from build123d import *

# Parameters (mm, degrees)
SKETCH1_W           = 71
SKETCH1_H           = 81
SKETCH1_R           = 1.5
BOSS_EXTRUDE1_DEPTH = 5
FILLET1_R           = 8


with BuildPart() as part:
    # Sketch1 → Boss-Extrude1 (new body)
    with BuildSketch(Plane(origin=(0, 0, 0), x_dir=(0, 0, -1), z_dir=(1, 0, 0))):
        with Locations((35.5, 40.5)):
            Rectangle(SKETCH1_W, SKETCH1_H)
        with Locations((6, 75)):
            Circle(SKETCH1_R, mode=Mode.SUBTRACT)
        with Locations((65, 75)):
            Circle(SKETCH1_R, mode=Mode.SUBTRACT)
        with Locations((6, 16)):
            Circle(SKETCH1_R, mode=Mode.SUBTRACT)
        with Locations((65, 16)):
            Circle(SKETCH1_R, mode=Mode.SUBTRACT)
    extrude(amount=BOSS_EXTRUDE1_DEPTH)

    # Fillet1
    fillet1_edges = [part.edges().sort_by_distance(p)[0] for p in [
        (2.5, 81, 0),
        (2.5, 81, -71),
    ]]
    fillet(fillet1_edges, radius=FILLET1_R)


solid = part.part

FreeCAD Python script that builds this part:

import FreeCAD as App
import Part
import Sketcher
from FreeCAD import Vector


def edges_at(feature, points):
    """Names of the edges that pass closest to the given points."""
    edges = feature.Shape.Edges
    near = lambda p: min(range(len(edges)), key=lambda i: edges[i].distToShape(Part.Vertex(*p))[0])
    return sorted({f"Edge{near(p) + 1}" for p in points})


def add_polygon(sketch, points):
    """Adds a closed chain of lines whose ends are joined by coincident constraints."""
    first, n = sketch.GeometryCount, len(points)
    for a, b in zip(points, points[1:] + points[:1]):
        sketch.addGeometry(Part.LineSegment(App.Vector(*a, 0), App.Vector(*b, 0)), False)
    for i in range(n):
        sketch.addConstraint(Sketcher.Constraint("Coincident", first + i, 2, first + (i + 1) % n, 1))

doc = App.newDocument("Part")
params = doc.addObject("Spreadsheet::Sheet", "Params")
for row, (alias, value) in enumerate([
    ("sketch1_diameter", "3 mm"),
    ("sketch1_width", "81 mm"),
    ("sketch1_height", "71 mm"),
    ("pad1_length", "5 mm"),
    ("fillet_radius", "8 mm"),
], start=1):
    params.set(f"A{row}", alias)
    params.set(f"B{row}", "=" + value)
    params.setAlias(f"B{row}", alias)

body = doc.addObject("PartDesign::Body", "Body")

sketch1 = body.newObject("Sketcher::SketchObject", "Sketch")
sketch1.AttachmentSupport = (doc.getObject("YZ_Plane"), [""])
sketch1.MapMode = "FlatFace"
add_polygon(sketch1, [(81, 0), (0, 0), (0, -71), (81, -71)])
sketch1.addGeometry(Part.Circle(Vector(16, -6, 0), Vector(0, 0, 1), 1.5), False)
sketch1.addGeometry(Part.Circle(Vector(16, -65, 0), Vector(0, 0, 1), 1.5), False)
sketch1.addGeometry(Part.Circle(Vector(75, -6, 0), Vector(0, 0, 1), 1.5), False)
sketch1.addGeometry(Part.Circle(Vector(75, -65, 0), Vector(0, 0, 1), 1.5), False)
sketch1.addConstraint([
    Sketcher.Constraint("Horizontal", 0),
    Sketcher.Constraint("Vertical", 1),
    Sketcher.Constraint("Horizontal", 2),
    Sketcher.Constraint("Vertical", 3),
    Sketcher.Constraint("Coincident", 0, 2, -1, 1),
    Sketcher.Constraint("Equal", 4, 5),
    Sketcher.Constraint("Equal", 5, 6),
    Sketcher.Constraint("Equal", 6, 7),
    Sketcher.Constraint("Horizontal", 4, 3, 6, 3),
    Sketcher.Constraint("Horizontal", 5, 3, 7, 3),
    Sketcher.Constraint("Vertical", 4, 3, 5, 3),
    Sketcher.Constraint("Vertical", 6, 3, 7, 3),
    Sketcher.Constraint("Diameter", 4, 3.0),
    Sketcher.Constraint("DistanceX", 0, 2, 0, 1, 81.0),
    Sketcher.Constraint("DistanceY", 1, 2, 1, 1, 71.0),
    Sketcher.Constraint("DistanceX", -1, 1, 4, 3, 16.0),
    Sketcher.Constraint("DistanceY", 4, 3, -1, 1, 6.0),
    Sketcher.Constraint("DistanceY", 5, 3, -1, 1, 65.0),
    Sketcher.Constraint("DistanceX", -1, 1, 6, 3, 75.0),
])
sketch1.setExpression("Constraints[16]", "Params.sketch1_diameter")
sketch1.setExpression("Constraints[17]", "Params.sketch1_width")
sketch1.setExpression("Constraints[18]", "Params.sketch1_height")
pad1 = body.newObject("PartDesign::Pad", "Pad")
pad1.Profile = sketch1
pad1.setExpression("Length", "Params.pad1_length")
doc.recompute()

fillet = body.newObject("PartDesign::Fillet", "Fillet")
fillet.Base = (pad1, edges_at(pad1, [(2.5, 81, 0), (2.5, 81, -71)]))
fillet.setExpression("Radius", "Params.fillet_radius")

doc.recompute()
